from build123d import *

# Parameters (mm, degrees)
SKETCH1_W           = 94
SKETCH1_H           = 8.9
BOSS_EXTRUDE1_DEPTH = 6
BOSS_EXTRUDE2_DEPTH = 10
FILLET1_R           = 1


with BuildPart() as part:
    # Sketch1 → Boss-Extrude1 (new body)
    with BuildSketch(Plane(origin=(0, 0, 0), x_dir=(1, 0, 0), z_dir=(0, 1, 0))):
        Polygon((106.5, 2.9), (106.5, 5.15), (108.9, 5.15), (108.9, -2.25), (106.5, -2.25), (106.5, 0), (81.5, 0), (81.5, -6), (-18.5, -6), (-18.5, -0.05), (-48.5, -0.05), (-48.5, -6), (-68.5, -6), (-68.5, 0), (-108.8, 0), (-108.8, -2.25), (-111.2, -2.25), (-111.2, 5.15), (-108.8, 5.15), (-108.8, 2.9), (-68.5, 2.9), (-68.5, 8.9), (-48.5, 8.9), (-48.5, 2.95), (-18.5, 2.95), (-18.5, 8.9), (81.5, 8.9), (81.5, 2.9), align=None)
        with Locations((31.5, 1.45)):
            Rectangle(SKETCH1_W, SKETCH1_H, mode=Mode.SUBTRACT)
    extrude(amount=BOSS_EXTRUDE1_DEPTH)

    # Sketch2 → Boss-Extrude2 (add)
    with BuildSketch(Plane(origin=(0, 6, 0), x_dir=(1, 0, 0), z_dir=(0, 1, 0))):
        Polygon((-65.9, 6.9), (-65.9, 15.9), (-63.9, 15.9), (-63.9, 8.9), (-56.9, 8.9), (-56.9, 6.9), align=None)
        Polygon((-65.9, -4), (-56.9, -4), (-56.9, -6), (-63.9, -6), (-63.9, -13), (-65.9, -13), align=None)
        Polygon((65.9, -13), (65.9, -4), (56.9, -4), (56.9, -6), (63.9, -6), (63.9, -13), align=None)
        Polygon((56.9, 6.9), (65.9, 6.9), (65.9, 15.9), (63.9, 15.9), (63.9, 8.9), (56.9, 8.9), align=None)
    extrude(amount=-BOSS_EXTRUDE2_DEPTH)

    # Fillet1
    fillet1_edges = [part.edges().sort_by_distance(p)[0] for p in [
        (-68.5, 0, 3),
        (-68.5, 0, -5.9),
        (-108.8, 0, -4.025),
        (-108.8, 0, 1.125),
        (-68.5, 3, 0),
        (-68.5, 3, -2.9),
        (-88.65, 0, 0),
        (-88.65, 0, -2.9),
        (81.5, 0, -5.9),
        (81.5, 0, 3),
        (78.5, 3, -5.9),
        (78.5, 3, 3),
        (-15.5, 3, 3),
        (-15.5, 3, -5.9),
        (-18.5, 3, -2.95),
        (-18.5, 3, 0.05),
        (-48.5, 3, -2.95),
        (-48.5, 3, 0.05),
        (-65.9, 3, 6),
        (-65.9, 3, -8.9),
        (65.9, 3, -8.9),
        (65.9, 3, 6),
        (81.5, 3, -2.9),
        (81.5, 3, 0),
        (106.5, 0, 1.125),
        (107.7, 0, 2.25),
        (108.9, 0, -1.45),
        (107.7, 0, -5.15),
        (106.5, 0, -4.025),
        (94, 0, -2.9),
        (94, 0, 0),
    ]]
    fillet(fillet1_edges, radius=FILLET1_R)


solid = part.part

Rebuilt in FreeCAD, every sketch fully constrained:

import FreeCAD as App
import Part
import Sketcher


def edges_at(feature, points):
    """Names of the edges that pass closest to the given points."""
    edges = feature.Shape.Edges
    near = lambda p: min(range(len(edges)), key=lambda i: edges[i].distToShape(Part.Vertex(*p))[0])
    return sorted({f"Edge{near(p) + 1}" for p in points})

doc = App.newDocument("Part")
body = doc.addObject("PartDesign::Body", "Body")

sketch1 = body.newObject("Sketcher::SketchObject", "Sketch")
sketch1.AttachmentSupport = (doc.getObject("XZ_Plane"), [""])
sketch1.MapMode = "FlatFace"
sketch1.addGeometry([
    Part.LineSegment(App.Vector(106.5, -5.2, 0), App.Vector(106.5, -2.9, 0)),
    Part.LineSegment(App.Vector(106.5, -2.9, 0), App.Vector(81.5, -2.9, 0)),
    Part.LineSegment(App.Vector(81.5, -2.9, 0), App.Vector(81.5, -8.9, 0)),
    Part.LineSegment(App.Vector(81.5, -8.9, 0), App.Vector(-18.5, -8.9, 0)),
    Part.LineSegment(App.Vector(-18.5, -8.9, 0), App.Vector(-18.5, -3, 0)),
    Part.LineSegment(App.Vector(-18.5, -3, 0), App.Vector(-48.5, -3, 0)),
    Part.LineSegment(App.Vector(-48.5, -3, 0), App.Vector(-48.5, -8.9, 0)),
    Part.LineSegment(App.Vector(-48.5, -8.9, 0), App.Vector(-68.5, -8.9, 0)),
    Part.LineSegment(App.Vector(-68.5, -8.9, 0), App.Vector(-68.5, -2.9, 0)),
    Part.LineSegment(App.Vector(-68.5, -2.9, 0), App.Vector(-108.8, -2.9, 0)),
    Part.LineSegment(App.Vector(-108.8, -2.9, 0), App.Vector(-108.8, -5.2, 0)),
    Part.LineSegment(App.Vector(-108.8, -5.2, 0), App.Vector(-111.2, -5.2, 0)),
    Part.LineSegment(App.Vector(-111.2, -5.2, 0), App.Vector(-111.2, 2.2, 0)),
    Part.LineSegment(App.Vector(-111.2, 2.2, 0), App.Vector(-108.8, 2.2, 0)),
    Part.LineSegment(App.Vector(-108.8, 2.2, 0), App.Vector(-108.8, 0, 0)),
    Part.LineSegment(App.Vector(-108.8, 0, 0), App.Vector(-68.5, 0, 0)),
    Part.LineSegment(App.Vector(-68.5, 0, 0), App.Vector(-68.5, 6, 0)),
    Part.LineSegment(App.Vector(-68.5, 6, 0), App.Vector(-48.5, 6, 0)),
    Part.LineSegment(App.Vector(-48.5, 6, 0), App.Vector(-48.5, 0.1, 0)),
    Part.LineSegment(App.Vector(-48.5, 0.1, 0), App.Vector(-18.5, 0.1, 0)),
    Part.LineSegment(App.Vector(-18.5, 0.1, 0), App.Vector(-18.5, 6, 0)),
    Part.LineSegment(App.Vector(-18.5, 6, 0), App.Vector(81.5, 6, 0)),
    Part.LineSegment(App.Vector(81.5, 6, 0), App.Vector(81.5, 0, 0)),
    Part.LineSegment(App.Vector(81.5, 0, 0), App.Vector(106.5, 0, 0)),
    Part.LineSegment(App.Vector(106.5, 0, 0), App.Vector(106.5, 2.2, 0)),
    Part.LineSegment(App.Vector(106.5, 2.2, 0), App.Vector(108.9, 2.2, 0)),
    Part.LineSegment(App.Vector(108.9, 2.2, 0), App.Vector(108.9, -5.2, 0)),
    Part.LineSegment(App.Vector(108.9, -5.2, 0), App.Vector(106.5, -5.2, 0)),
    Part.LineSegment(App.Vector(-15.5, 3, 0), App.Vector(-15.5, -5.9, 0)),
    Part.LineSegment(App.Vector(-15.5, -5.9, 0), App.Vector(78.5, -5.9, 0)),
    Part.LineSegment(App.Vector(78.5, -5.9, 0), App.Vector(78.5, 3, 0)),
    Part.LineSegment(App.Vector(78.5, 3, 0), App.Vector(-15.5, 3, 0)),
], False)
sketch1.addConstraint([
    Sketcher.Constraint("Coincident", 0, 2, 1, 1),
    Sketcher.Constraint("Coincident", 1, 2, 2, 1),
    Sketcher.Constraint("Coincident", 2, 2, 3, 1),
    Sketcher.Constraint("Coincident", 3, 2, 4, 1),
    Sketcher.Constraint("Coincident", 4, 2, 5, 1),
    Sketcher.Constraint("Coincident", 5, 2, 6, 1),
    Sketcher.Constraint("Coincident", 6, 2, 7, 1),
    Sketcher.Constraint("Coincident", 7, 2, 8, 1),
    Sketcher.Constraint("Coincident", 8, 2, 9, 1),
    Sketcher.Constraint("Coincident", 9, 2, 10, 1),
    Sketcher.Constraint("Coincident", 10, 2, 11, 1),
    Sketcher.Constraint("Coincident", 11, 2, 12, 1),
    Sketcher.Constraint("Coincident", 12, 2, 13, 1),
    Sketcher.Constraint("Coincident", 13, 2, 14, 1),
    Sketcher.Constraint("Coincident", 14, 2, 15, 1),
    Sketcher.Constraint("Coincident", 15, 2, 16, 1),
    Sketcher.Constraint("Coincident", 16, 2, 17, 1),
    Sketcher.Constraint("Coincident", 17, 2, 18, 1),
    Sketcher.Constraint("Coincident", 18, 2, 19, 1),
    Sketcher.Constraint("Coincident", 19, 2, 20, 1),
    Sketcher.Constraint("Coincident", 20, 2, 21, 1),
    Sketcher.Constraint("Coincident", 21, 2, 22, 1),
    Sketcher.Constraint("Coincident", 22, 2, 23, 1),
    Sketcher.Constraint("Coincident", 23, 2, 24, 1),
    Sketcher.Constraint("Coincident", 24, 2, 25, 1),
    Sketcher.Constraint("Coincident", 25, 2, 26, 1),
    Sketcher.Constraint("Coincident", 26, 2, 27, 1),
    Sketcher.Constraint("Coincident", 27, 2, 0, 1),
    Sketcher.Constraint("Coincident", 28, 2, 29, 1),
    Sketcher.Constraint("Coincident", 29, 2, 30, 1),
    Sketcher.Constraint("Coincident", 30, 2, 31, 1),
    Sketcher.Constraint("Coincident", 31, 2, 28, 1),
    Sketcher.Constraint("Vertical", 0),
    Sketcher.Constraint("Horizontal", 1),
    Sketcher.Constraint("Vertical", 2),
    Sketcher.Constraint("Horizontal", 3),
    Sketcher.Constraint("Vertical", 4),
    Sketcher.Constraint("Horizontal", 5),
    Sketcher.Constraint("Vertical", 6),
    Sketcher.Constraint("Horizontal", 7),
    Sketcher.Constraint("Vertical", 8),
    Sketcher.Constraint("Horizontal", 9),
    Sketcher.Constraint("Vertical", 10),
    Sketcher.Constraint("Horizontal", 11),
    Sketcher.Constraint("Vertical", 12),
    Sketcher.Constraint("Horizontal", 13),
    Sketcher.Constraint("Vertical", 14),
    Sketcher.Constraint("Horizontal", 15),
    Sketcher.Constraint("Vertical", 16),
    Sketcher.Constraint("Horizontal", 17),
    Sketcher.Constraint("Vertical", 18),
    Sketcher.Constraint("Horizontal", 19),
    Sketcher.Constraint("Vertical", 20),
    Sketcher.Constraint("Horizontal", 21),
    Sketcher.Constraint("Vertical", 22),
    Sketcher.Constraint("Horizontal", 23),
    Sketcher.Constraint("Vertical", 24),
    Sketcher.Constraint("Horizontal", 25),
    Sketcher.Constraint("Vertical", 26),
    Sketcher.Constraint("Horizontal", 27),
    Sketcher.Constraint("Vertical", 28),
    Sketcher.Constraint("Horizontal", 29),
    Sketcher.Constraint("Vertical", 30),
    Sketcher.Constraint("Horizontal", 31),
    Sketcher.Constraint("PointOnObject", 14, 2, -1),
    Sketcher.Constraint("PointOnObject", 22, 2, -1),
    Sketcher.Constraint("Horizontal", 3, 2, 6, 2),
    Sketcher.Constraint("Horizontal", 1, 2, 8, 2),
    Sketcher.Constraint("Horizontal", 17, 2, 20, 2),
    Sketcher.Constraint("Horizontal", 13, 2, 24, 2),
    Sketcher.Constraint("Horizontal", 11, 2, 26, 2),
    Sketcher.Constraint("Vertical", 10, 2, 13, 2),
    Sketcher.Constraint("Vertical", 8, 2, 15, 2),
    Sketcher.Constraint("Vertical", 6, 2, 17, 2),
    Sketcher.Constraint("Vertical", 4, 2, 19, 2),
    Sketcher.Constraint("Vertical", 2, 2, 21, 2),
    Sketcher.Constraint("Vertical", 0, 2, 23, 2),
    Sketcher.Constraint("Equal", 13, 25),
    Sketcher.Constraint("Equal", 10, 14),
    Sketcher.Constraint("Equal", 8, 16),
    Sketcher.Constraint("Equal", 6, 18),
    Sketcher.Constraint("DistanceX", 1, 2, 1, 1, 25.0),
    Sketcher.Constraint("DistanceX", 3, 2, 3, 1, 100.0),
    Sketcher.Constraint("DistanceX", 5, 2, 5, 1, 30.0),
    Sketcher.Constraint("DistanceX", 7, 2, 7, 1, 20.0),
    Sketcher.Constraint("DistanceX", 29, 1, 29, 2, 94.0),
    Sketcher.Constraint("DistanceY", 2, 2, 2, 1, 6.0),
    Sketcher.Constraint("DistanceX", 9, 2, 9, 1, 40.3),
    Sketcher.Constraint("DistanceX", 11, 2, 11, 1, 2.4),
    Sketcher.Constraint("DistanceY", 12, 1, 12, 2, 7.4),
    Sketcher.Constraint("DistanceY", 28, 2, 28, 1, 8.9),
    Sketcher.Constraint("DistanceY", -1, 1, 30, 2, 3.0),
    Sketcher.Constraint("DistanceY", 5, 2, 18, 2, 3.0),
    Sketcher.Constraint("DistanceX", 4, 2, 28, 2, 3.0),
    Sketcher.Constraint("DistanceY", 3, 2, 28, 2, 3.0),
    Sketcher.Constraint("DistanceX", -1, 1, 0, 2, 106.5),
])
pad1 = body.newObject("PartDesign::Pad", "Pad")
pad1.Profile = sketch1
pad1.Length = 6
pad1.Reversed = True

sketch2 = body.newObject("Sketcher::SketchObject", "Sketch001")
sketch2.AttachmentSupport = (doc.getObject("XZ_Plane"), [""])
sketch2.MapMode = "FlatFace"
sketch2.AttachmentOffset = App.Placement(App.Vector(0, 0, -6), App.Rotation())
sketch2.addGeometry([
    Part.LineSegment(App.Vector(-65.9, -15.9, 0), App.Vector(-65.9, -6.9, 0)),
    Part.LineSegment(App.Vector(-65.9, -6.9, 0), App.Vector(-56.9, -6.9, 0)),
    Part.LineSegment(App.Vector(-56.9, -6.9, 0), App.Vector(-56.9, -8.9, 0)),
    Part.LineSegment(App.Vector(-56.9, -8.9, 0), App.Vector(-63.9, -8.9, 0)),
    Part.LineSegment(App.Vector(-63.9, -8.9, 0), App.Vector(-63.9, -15.9, 0)),
    Part.LineSegment(App.Vector(-63.9, -15.9, 0), App.Vector(-65.9, -15.9, 0)),
    Part.LineSegment(App.Vector(-56.9, 4, 0), App.Vector(-65.9, 4, 0)),
    Part.LineSegment(App.Vector(-65.9, 4, 0), App.Vector(-65.9, 13, 0)),
    Part.LineSegment(App.Vector(-65.9, 13, 0), App.Vector(-63.9, 13, 0)),
    Part.LineSegment(App.Vector(-63.9, 13, 0), App.Vector(-63.9, 6, 0)),
    Part.LineSegment(App.Vector(-63.9, 6, 0), App.Vector(-56.9, 6, 0)),
    Part.LineSegment(App.Vector(-56.9, 6, 0), App.Vector(-56.9, 4, 0)),
    Part.LineSegment(App.Vector(65.9, 13, 0), App.Vector(65.9, 4, 0)),
    Part.LineSegment(App.Vector(65.9, 4, 0), App.Vector(56.9, 4, 0)),
    Part.LineSegment(App.Vector(56.9, 4, 0), App.Vector(56.9, 6, 0)),
    Part.LineSegment(App.Vector(56.9, 6, 0), App.Vector(63.9, 6, 0)),
    Part.LineSegment(App.Vector(63.9, 6, 0), App.Vector(63.9, 13, 0)),
    Part.LineSegment(App.Vector(63.9, 13, 0), App.Vector(65.9, 13, 0)),
    Part.LineSegment(App.Vector(56.9, -6.9, 0), App.Vector(65.9, -6.9, 0)),
    Part.LineSegment(App.Vector(65.9, -6.9, 0), App.Vector(65.9, -15.9, 0)),
    Part.LineSegment(App.Vector(65.9, -15.9, 0), App.Vector(63.9, -15.9, 0)),
    Part.LineSegment(App.Vector(63.9, -15.9, 0), App.Vector(63.9, -8.9, 0)),
    Part.LineSegment(App.Vector(63.9, -8.9, 0), App.Vector(56.9, -8.9, 0)),
    Part.LineSegment(App.Vector(56.9, -8.9, 0), App.Vector(56.9, -6.9, 0)),
], False)
sketch2.addConstraint([
    Sketcher.Constraint("Coincident", 0, 2, 1, 1),
    Sketcher.Constraint("Coincident", 1, 2, 2, 1),
    Sketcher.Constraint("Coincident", 2, 2, 3, 1),
    Sketcher.Constraint("Coincident", 3, 2, 4, 1),
    Sketcher.Constraint("Coincident", 4, 2, 5, 1),
    Sketcher.Constraint("Coincident", 5, 2, 0, 1),
    Sketcher.Constraint("Coincident", 6, 2, 7, 1),
    Sketcher.Constraint("Coincident", 7, 2, 8, 1),
    Sketcher.Constraint("Coincident", 8, 2, 9, 1),
    Sketcher.Constraint("Coincident", 9, 2, 10, 1),
    Sketcher.Constraint("Coincident", 10, 2, 11, 1),
    Sketcher.Constraint("Coincident", 11, 2, 6, 1),
    Sketcher.Constraint("Coincident", 12, 2, 13, 1),
    Sketcher.Constraint("Coincident", 13, 2, 14, 1),
    Sketcher.Constraint("Coincident", 14, 2, 15, 1),
    Sketcher.Constraint("Coincident", 15, 2, 16, 1),
    Sketcher.Constraint("Coincident", 16, 2, 17, 1),
    Sketcher.Constraint("Coincident", 17, 2, 12, 1),
    Sketcher.Constraint("Coincident", 18, 2, 19, 1),
    Sketcher.Constraint("Coincident", 19, 2, 20, 1),
    Sketcher.Constraint("Coincident", 20, 2, 21, 1),
    Sketcher.Constraint("Coincident", 21, 2, 22, 1),
    Sketcher.Constraint("Coincident", 22, 2, 23, 1),
    Sketcher.Constraint("Coincident", 23, 2, 18, 1),
    Sketcher.Constraint("Vertical", 0),
    Sketcher.Constraint("Horizontal", 1),
    Sketcher.Constraint("Vertical", 2),
    Sketcher.Constraint("Horizontal", 3),
    Sketcher.Constraint("Vertical", 4),
    Sketcher.Constraint("Horizontal", 5),
    Sketcher.Constraint("Horizontal", 6),
    Sketcher.Constraint("Vertical", 7),
    Sketcher.Constraint("Horizontal", 8),
    Sketcher.Constraint("Vertical", 9),
    Sketcher.Constraint("Horizontal", 10),
    Sketcher.Constraint("Vertical", 11),
    Sketcher.Constraint("Vertical", 12),
    Sketcher.Constraint("Horizontal", 13),
    Sketcher.Constraint("Vertical", 14),
    Sketcher.Constraint("Horizontal", 15),
    Sketcher.Constraint("Vertical", 16),
    Sketcher.Constraint("Horizontal", 17),
    Sketcher.Constraint("Horizontal", 18),
    Sketcher.Constraint("Vertical", 19),
    Sketcher.Constraint("Horizontal", 20),
    Sketcher.Constraint("Vertical", 21),
    Sketcher.Constraint("Horizontal", 22),
    Sketcher.Constraint("Vertical", 23),
    Sketcher.Constraint("Symmetric", 6, 2, 12, 2, -2),
    Sketcher.Constraint("Symmetric", 10, 2, 14, 2, -2),
    Sketcher.Constraint("Symmetric", 8, 2, 16, 2, -2),
    Sketcher.Constraint("Symmetric", 0, 2, 18, 2, -2),
    Sketcher.Constraint("Symmetric", 4, 2, 20, 2, -2),
    Sketcher.Constraint("Symmetric", 2, 2, 22, 2, -2),
    Sketcher.Constraint("Vertical", 5, 2, 6, 2),
    Sketcher.Constraint("Vertical", 4, 2, 8, 2),
    Sketcher.Constraint("Vertical", 2, 2, 10, 2),
    Sketcher.Constraint("Equal", 18, 0),
    Sketcher.Constraint("Equal", 20, 2),
    Sketcher.Constraint("Equal", 0, 7),
    Sketcher.Constraint("Equal", 4, 9),
    Sketcher.Constraint("DistanceX", 1, 1, 1, 2, 9.0),
    Sketcher.Constraint("DistanceX", 3, 2, 3, 1, 7.0),
    Sketcher.Constraint("DistanceY", -1, 1, 6, 2, 4.0),
    Sketcher.Constraint("DistanceX", 0, 2, -1, 1, 65.9),
    Sketcher.Constraint("DistanceY", 0, 2, -1, 1, 6.9),
])
pad2 = body.newObject("PartDesign::Pad", "Pad001")
pad2.Profile = sketch2
pad2.Length = 10
doc.recompute()

fillet = body.newObject("PartDesign::Fillet", "Fillet")
fillet.Base = (pad2, edges_at(pad2, [
    (-68.5, 0, 3),
    (-68.5, 0, -5.9),
    (-108.8, 0, -4.025),
    (-108.8, 0, 1.125),
    (-68.5, 3, 0),
    (-68.5, 3, -2.9),
    (-88.65, 0, 0),
    (-88.65, 0, -2.9),
    (81.5, 0, -5.9),
    (81.5, 0, 3),
    (78.5, 3, -5.9),
    (78.5, 3, 3),
    (-15.5, 3, 3),
    (-15.5, 3, -5.9),
    (-18.5, 3, -2.95),
    (-18.5, 3, 0.05),
    (-48.5, 3, -2.95),
    (-48.5, 3, 0.05),
    (-65.9, 3, 6),
    (-65.9, 3, -8.9),
    (65.9, 3, -8.9),
    (65.9, 3, 6),
    (81.5, 3, -2.9),
    (81.5, 3, 0),
    (106.5, 0, 1.125),
    (107.7, 0, 2.25),
    (108.9, 0, -1.45),
    (107.7, 0, -5.15),
    (106.5, 0, -4.025),
    (94, 0, -2.9),
    (94, 0, 0),
]))
fillet.Radius = 1

doc.recompute()
